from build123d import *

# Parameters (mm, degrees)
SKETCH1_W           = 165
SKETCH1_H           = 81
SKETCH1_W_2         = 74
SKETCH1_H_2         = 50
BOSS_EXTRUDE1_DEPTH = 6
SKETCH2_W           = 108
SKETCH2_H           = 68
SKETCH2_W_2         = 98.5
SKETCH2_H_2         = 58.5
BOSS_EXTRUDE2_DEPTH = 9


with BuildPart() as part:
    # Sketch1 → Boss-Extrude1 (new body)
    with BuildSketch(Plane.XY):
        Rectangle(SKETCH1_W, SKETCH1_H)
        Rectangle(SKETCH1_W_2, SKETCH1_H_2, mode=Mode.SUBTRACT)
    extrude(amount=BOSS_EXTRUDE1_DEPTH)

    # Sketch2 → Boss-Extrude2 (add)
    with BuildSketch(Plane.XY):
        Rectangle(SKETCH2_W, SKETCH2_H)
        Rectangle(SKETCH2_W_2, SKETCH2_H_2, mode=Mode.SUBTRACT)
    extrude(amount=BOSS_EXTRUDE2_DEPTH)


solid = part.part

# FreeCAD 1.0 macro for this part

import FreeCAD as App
import Part
import Sketcher
from FreeCAD import Vector
Q = App.Units.Quantity


def add_polygon(sketch, points):
    """Adds a closed chain of lines whose ends are joined by coincident constraints."""
    first, n = sketch.GeometryCount, len(points)
    for a, b in zip(points, points[1:] + points[:1]):
        sketch.addGeometry(Part.LineSegment(App.Vector(*a, 0), App.Vector(*b, 0)), False)
    for i in range(n):
        sketch.addConstraint(Sketcher.Constraint("Coincident", first + i, 2, first + (i + 1) % n, 1))

doc = App.newDocument("Part")
body = doc.addObject("PartDesign::Body", "Body")

# Sketch on XY plane
sketch1 = body.newObject("Sketcher::SketchObject", "Sketch")
sketch1.AttachmentSupport = (doc.getObject("XY_Plane"), [""])
sketch1.MapMode = "FlatFace"
add_polygon(sketch1, [(-82, 40), (-82, -40), (82, -40), (82, 40)])  # lines 0-3
add_polygon(sketch1, [(37, -25), (-37, -25), (-37, 25), (37, 25)])  # lines 4-7
sketch1.addConstraint([
    Sketcher.Constraint("Vertical", 0),
    Sketcher.Constraint("Horizontal", 1),
    Sketcher.Constraint("Vertical", 2),
    Sketcher.Constraint("Horizontal", 3),
    Sketcher.Constraint("Horizontal", 4),
    Sketcher.Constraint("Vertical", 5),
    Sketcher.Constraint("Horizontal", 6),
    Sketcher.Constraint("Vertical", 7),
    Sketcher.Constraint("Symmetric", 0, 2, 2, 2, -1, 1),
    Sketcher.Constraint("Symmetric", 4, 2, 6, 2, -1, 1),
    Sketcher.Constraint("DistanceX", 1, 1, 1, 2, Q("165 mm")),
    Sketcher.Constraint("DistanceX", 4, 2, 4, 1, Q("74 mm")),
    Sketcher.Constraint("DistanceY", 0, 2, 0, 1, Q("81 mm")),
    Sketcher.Constraint("DistanceY", 5, 1, 5, 2, Q("50 mm")),
])
pad1 = body.newObject("PartDesign::Pad", "Pad")
pad1.Profile = sketch1
pad1.Length = 6

# Sketch on XY plane
sketch2 = body.newObject("Sketcher::SketchObject", "Sketch001")
sketch2.AttachmentSupport = (doc.getObject("XY_Plane"), [""])
sketch2.MapMode = "FlatFace"
add_polygon(sketch2, [(-54, 34), (-54, -34), (54, -34), (54, 34)])  # lines 0-3
add_polygon(sketch2, [(49, -29), (-49, -29), (-49, 29), (49, 29)])  # lines 4-7
sketch2.addConstraint([
    Sketcher.Constraint("Vertical", 0),
    Sketcher.Constraint("Horizontal", 1),
    Sketcher.Constraint("Vertical", 2),
    Sketcher.Constraint("Horizontal", 3),
    Sketcher.Constraint("Horizontal", 4),
    Sketcher.Constraint("Vertical", 5),
    Sketcher.Constraint("Horizontal", 6),
    Sketcher.Constraint("Vertical", 7),
    Sketcher.Constraint("Symmetric", 0, 2, 2, 2, -1, 1),
    Sketcher.Constraint("Symmetric", 4, 2, 6, 2, -1, 1),
    Sketcher.Constraint("DistanceX", 1, 1, 1, 2, Q("108 mm")),
    Sketcher.Constraint("DistanceY", 0, 2, 0, 1, Q("68 mm")),
    Sketcher.Constraint("DistanceX", 4, 2, 4, 1, Q("98.5 mm")),
    Sketcher.Constraint("DistanceY", 5, 1, 5, 2, Q("58.5 mm")),
])
pad2 = body.newObject("PartDesign::Pad", "Pad001")
pad2.Profile = sketch2
pad2.Length = 9

doc.recompute()
